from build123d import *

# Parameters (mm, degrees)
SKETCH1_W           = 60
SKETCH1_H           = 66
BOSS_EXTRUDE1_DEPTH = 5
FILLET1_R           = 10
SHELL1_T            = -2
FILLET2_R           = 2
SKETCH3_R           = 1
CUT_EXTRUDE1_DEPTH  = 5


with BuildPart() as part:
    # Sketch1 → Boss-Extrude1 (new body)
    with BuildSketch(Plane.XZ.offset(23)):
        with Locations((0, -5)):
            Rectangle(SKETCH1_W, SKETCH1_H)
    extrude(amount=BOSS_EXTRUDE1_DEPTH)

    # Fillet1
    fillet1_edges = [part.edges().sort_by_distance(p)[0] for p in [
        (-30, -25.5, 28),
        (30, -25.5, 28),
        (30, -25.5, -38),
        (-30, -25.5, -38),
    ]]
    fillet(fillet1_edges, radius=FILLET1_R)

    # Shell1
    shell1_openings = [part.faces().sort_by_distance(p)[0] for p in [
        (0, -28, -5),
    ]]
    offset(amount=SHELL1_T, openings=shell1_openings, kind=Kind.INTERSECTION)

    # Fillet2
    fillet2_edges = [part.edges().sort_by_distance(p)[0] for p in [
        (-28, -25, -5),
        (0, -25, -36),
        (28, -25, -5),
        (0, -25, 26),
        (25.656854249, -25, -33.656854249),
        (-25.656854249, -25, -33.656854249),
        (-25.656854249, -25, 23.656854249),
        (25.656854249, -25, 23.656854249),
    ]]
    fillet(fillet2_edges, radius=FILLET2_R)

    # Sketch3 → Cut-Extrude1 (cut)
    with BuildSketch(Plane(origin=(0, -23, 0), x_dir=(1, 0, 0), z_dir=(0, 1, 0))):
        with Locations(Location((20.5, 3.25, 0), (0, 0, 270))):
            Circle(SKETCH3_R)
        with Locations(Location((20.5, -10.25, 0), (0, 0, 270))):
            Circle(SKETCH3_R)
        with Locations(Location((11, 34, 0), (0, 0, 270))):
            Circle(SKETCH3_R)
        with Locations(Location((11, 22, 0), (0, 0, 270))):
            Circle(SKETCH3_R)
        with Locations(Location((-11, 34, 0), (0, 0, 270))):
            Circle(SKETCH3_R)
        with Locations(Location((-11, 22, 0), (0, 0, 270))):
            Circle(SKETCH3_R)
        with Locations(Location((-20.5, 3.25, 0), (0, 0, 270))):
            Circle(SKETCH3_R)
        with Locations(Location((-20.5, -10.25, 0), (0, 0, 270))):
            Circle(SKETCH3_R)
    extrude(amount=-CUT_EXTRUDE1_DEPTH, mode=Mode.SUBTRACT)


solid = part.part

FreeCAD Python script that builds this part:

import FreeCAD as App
import Part
import Sketcher
Q = App.Units.Quantity


def edges_at(feature, points):
    """Names of the edges that pass closest to the given points."""
    edges = feature.Shape.Edges
    near = lambda p: min(range(len(edges)), key=lambda i: edges[i].distToShape(Part.Vertex(*p))[0])
    return sorted({f"Edge{near(p) + 1}" for p in points})


def faces_at(feature, points):
    """Names of the faces that lie closest to the given points."""
    faces = feature.Shape.Faces
    near = lambda p: min(range(len(faces)), key=lambda i: faces[i].distToShape(Part.Vertex(*p))[0])
    return sorted({f"Face{near(p) + 1}" for p in points})

doc = App.newDocument("Part")
body = doc.addObject("PartDesign::Body", "Body")

sketch1 = doc.addObject("Sketcher::SketchObject", "Sketch")
body.addObject(sketch1)
sketch1.AttachmentSupport = (doc.XZ_Plane, [""])
sketch1.MapMode = "FlatFace"
sketch1.AttachmentOffset = App.Placement(App.Vector(0, 0, 23), App.Rotation())
sketch1.addGeometry([
    Part.LineSegment(App.Vector(-30, 28, 0), App.Vector(-30, -38, 0)),
    Part.LineSegment(App.Vector(-30, -38, 0), App.Vector(30, -38, 0)),
    Part.LineSegment(App.Vector(30, -38, 0), App.Vector(30, 28, 0)),
    Part.LineSegment(App.Vector(30, 28, 0), App.Vector(-30, 28, 0)),
], False)
sketch1.addConstraint([
    Sketcher.Constraint("Coincident", 0, 2, 1, 1),
    Sketcher.Constraint("Coincident", 1, 2, 2, 1),
    Sketcher.Constraint("Coincident", 2, 2, 3, 1),
    Sketcher.Constraint("Coincident", 3, 2, 0, 1),
    Sketcher.Constraint("Vertical", 0),
    Sketcher.Constraint("Horizontal", 1),
    Sketcher.Constraint("Vertical", 2),
    Sketcher.Constraint("Horizontal", 3),
    Sketcher.Constraint("DistanceX", 1, 1, 1, 2, Q("60 mm")),
    Sketcher.Constraint("DistanceY", 0, 2, 0, 1, Q("66 mm")),
    Sketcher.Constraint("DistanceX", 0, 2, -1, 1, Q("30 mm")),
    Sketcher.Constraint("DistanceY", 0, 2, -1, 1, Q("38 mm")),
])
pad1 = doc.addObject("PartDesign::Pad", "Pad")
body.addObject(pad1)
pad1.Profile = sketch1
pad1.Length = 5
doc.recompute()

fillet = doc.addObject("PartDesign::Fillet", "Fillet")
body.addObject(fillet)
fillet.Base = (pad1, edges_at(pad1, [
    (-30, -25.5, 28),
    (30, -25.5, 28),
    (30, -25.5, -38),
    (-30, -25.5, -38),
]))
fillet.Radius = 10
doc.recompute()

thickness = doc.addObject("PartDesign::Thickness", "Thickness")
body.addObject(thickness)
thickness.Base = (fillet, faces_at(fillet, [(0, -28, -5)]))
thickness.Value = 2
thickness.Reversed = True
thickness.Join = "Intersection"
doc.recompute()

fillet2 = doc.addObject("PartDesign::Fillet", "Fillet001")
body.addObject(fillet2)
fillet2.Base = (thickness, edges_at(thickness, [
    (-28, -25, -5),
    (0, -25, -36),
    (28, -25, -5),
    (0, -25, 26),
    (25.657, -25, -33.657),
    (-25.657, -25, -33.657),
    (-25.657, -25, 23.657),
    (25.657, -25, 23.657),
]))
fillet2.Radius = 2

sketch2 = doc.addObject("Sketcher::SketchObject", "Sketch001")
body.addObject(sketch2)
sketch2.AttachmentSupport = (doc.XZ_Plane, [""])
sketch2.MapMode = "FlatFace"
sketch2.AttachmentOffset = App.Placement(App.Vector(0, 0, 23), App.Rotation())
sketch2.addGeometry([
    Part.Circle(App.Vector(20.5, -3.25, 0), App.Vector(0, 0, 1), 1),
    Part.Circle(App.Vector(20.5, 10.25, 0), App.Vector(0, 0, 1), 1),
    Part.Circle(App.Vector(11, -34, 0), App.Vector(0, 0, 1), 1),
    Part.Circle(App.Vector(11, -22, 0), App.Vector(0, 0, 1), 1),
    Part.Circle(App.Vector(-11, -34, 0), App.Vector(0, 0, 1), 1),
    Part.Circle(App.Vector(-11, -22, 0), App.Vector(0, 0, 1), 1),
    Part.Circle(App.Vector(-20.5, -3.25, 0), App.Vector(0, 0, 1), 1),
    Part.Circle(App.Vector(-20.5, 10.25, 0), App.Vector(0, 0, 1), 1),
], False)
sketch2.addConstraint([
    Sketcher.Constraint("Equal", 0, 1),
    Sketcher.Constraint("Equal", 1, 2),
    Sketcher.Constraint("Equal", 2, 3),
    Sketcher.Constraint("Equal", 3, 4),
    Sketcher.Constraint("Equal", 4, 5),
    Sketcher.Constraint("Equal", 5, 6),
    Sketcher.Constraint("Equal", 6, 7),
    Sketcher.Constraint("Symmetric", 2, 3, 4, 3, -2),
    Sketcher.Constraint("Symmetric", 3, 3, 5, 3, -2),
    Sketcher.Constraint("Symmetric", 0, 3, 6, 3, -2),
    Sketcher.Constraint("Symmetric", 1, 3, 7, 3, -2),
    Sketcher.Constraint("Vertical", 0, 3, 1, 3),
    Sketcher.Constraint("Vertical", 2, 3, 3, 3),
    Sketcher.Constraint("Diameter", 0, Q("2 mm")),
    Sketcher.Constraint("DistanceX", -1, 1, 2, 3, Q("11 mm")),
    Sketcher.Constraint("DistanceY", 2, 3, -1, 1, Q("34 mm")),
    Sketcher.Constraint("DistanceY", 3, 3, -1, 1, Q("22 mm")),
    Sketcher.Constraint("DistanceX", 6, 3, 0, 3, Q("41 mm")),
    Sketcher.Constraint("DistanceY", 0, 3, 1, 3, Q("13.5 mm")),
    Sketcher.Constraint("DistanceY", 0, 3, -1, 1, Q("3.25 mm")),
])
pocket1 = doc.addObject("PartDesign::Pocket", "Pocket")
body.addObject(pocket1)
pocket1.Profile = sketch2
pocket1.Length = 5
pocket1.Reversed = True

doc.recompute()
